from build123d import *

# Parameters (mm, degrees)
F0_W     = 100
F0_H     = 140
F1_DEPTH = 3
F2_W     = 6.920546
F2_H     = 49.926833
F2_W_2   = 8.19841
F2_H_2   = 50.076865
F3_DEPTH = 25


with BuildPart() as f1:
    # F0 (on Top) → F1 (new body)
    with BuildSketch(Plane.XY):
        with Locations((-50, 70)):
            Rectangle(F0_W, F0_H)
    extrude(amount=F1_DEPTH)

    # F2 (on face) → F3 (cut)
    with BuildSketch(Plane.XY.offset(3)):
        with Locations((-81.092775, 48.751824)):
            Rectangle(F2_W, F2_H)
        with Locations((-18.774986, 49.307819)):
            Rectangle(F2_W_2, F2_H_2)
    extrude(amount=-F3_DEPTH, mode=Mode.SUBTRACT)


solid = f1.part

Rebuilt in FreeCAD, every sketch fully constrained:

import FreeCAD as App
import Part
import Sketcher
from FreeCAD import Vector

doc = App.newDocument("Part")
params = doc.addObject("Spreadsheet::Sheet", "Params")
for row, (alias, value) in enumerate([
    ("sketch1_width", "100 mm"),
    ("sketch1_height", "140 mm"),
    ("pad1_length", "3 mm"),
    ("pocket1_length", "25 mm"),
], start=1):
    params.set(f"A{row}", alias)
    params.set(f"B{row}", "=" + value)
    params.setAlias(f"B{row}", alias)

body = doc.addObject("PartDesign::Body", "Body")

# Sketch on XY plane
sketch1 = body.newObject("Sketcher::SketchObject", "Sketch")
sketch1.AttachmentSupport = (doc.getObject("XY_Plane"), [""])
sketch1.MapMode = "FlatFace"
sketch1.addGeometry([
    Part.LineSegment(Vector(-100, 140, 0), Vector(-100, 0, 0)),
    Part.LineSegment(Vector(-100, 0, 0), Vector(0, 0, 0)),
    Part.LineSegment(Vector(0, 0, 0), Vector(0, 140, 0)),
    Part.LineSegment(Vector(0, 140, 0), Vector(-100, 140, 0)),
], False)
sketch1.addConstraint([
    Sketcher.Constraint("Coincident", 0, 2, 1, 1),
    Sketcher.Constraint("Coincident", 1, 2, 2, 1),
    Sketcher.Constraint("Coincident", 2, 2, 3, 1),
    Sketcher.Constraint("Coincident", 3, 2, 0, 1),
    Sketcher.Constraint("Vertical", 0),
    Sketcher.Constraint("Horizontal", 1),
    Sketcher.Constraint("Vertical", 2),
    Sketcher.Constraint("Horizontal", 3),
    Sketcher.Constraint("Coincident", 1, 2, -1, 1),
    Sketcher.Constraint("DistanceX", 1, 1, 1, 2, 100.0),
    Sketcher.Constraint("DistanceY", 0, 2, 0, 1, 140.0),
])
sketch1.setExpression("Constraints[9]", "Params.sketch1_width")
sketch1.setExpression("Constraints[10]", "Params.sketch1_height")
pad1 = body.newObject("PartDesign::Pad", "Pad")
pad1.Profile = sketch1
pad1.setExpression("Length", "Params.pad1_length")

# Sketch on XY plane
sketch2 = body.newObject("Sketcher::SketchObject", "Sketch001")
sketch2.AttachmentSupport = (doc.getObject("XY_Plane"), [""])
sketch2.MapMode = "FlatFace"
sketch2.AttachmentOffset = App.Placement(Vector(0, 0, 3), App.Rotation())
sketch2.addGeometry([
    Part.LineSegment(Vector(-85, 74, 0), Vector(-85, 24, 0)),  # 0
    Part.LineSegment(Vector(-85, 24, 0), Vector(-78, 24, 0)),  # 1
    Part.LineSegment(Vector(-78, 24, 0), Vector(-78, 74, 0)),  # 2
    Part.LineSegment(Vector(-78, 74, 0), Vector(-85, 74, 0)),  # 3
    Part.LineSegment(Vector(-23, 74, 0), Vector(-23, 24, 0)),  # 4
    Part.LineSegment(Vector(-23, 24, 0), Vector(-15, 24, 0)),  # 5
    Part.LineSegment(Vector(-15, 24, 0), Vector(-15, 74, 0)),  # 6
    Part.LineSegment(Vector(-15, 74, 0), Vector(-23, 74, 0)),  # 7
], False)
sketch2.addConstraint([
    Sketcher.Constraint("Coincident", 0, 2, 1, 1),
    Sketcher.Constraint("Coincident", 1, 2, 2, 1),
    Sketcher.Constraint("Coincident", 2, 2, 3, 1),
    Sketcher.Constraint("Coincident", 3, 2, 0, 1),
    Sketcher.Constraint("Coincident", 4, 2, 5, 1),
    Sketcher.Constraint("Coincident", 5, 2, 6, 1),
    Sketcher.Constraint("Coincident", 6, 2, 7, 1),
    Sketcher.Constraint("Coincident", 7, 2, 4, 1),
    Sketcher.Constraint("Vertical", 0),
    Sketcher.Constraint("Horizontal", 1),
    Sketcher.Constraint("Vertical", 2),
    Sketcher.Constraint("Horizontal", 3),
    Sketcher.Constraint("Vertical", 4),
    Sketcher.Constraint("Horizontal", 5),
    Sketcher.Constraint("Vertical", 6),
    Sketcher.Constraint("Horizontal", 7),
    Sketcher.Constraint("DistanceX", 5, 1, 5, 2, 8.19841),
    Sketcher.Constraint("DistanceX", 1, 1, 1, 2, 6.920546),
    Sketcher.Constraint("DistanceY", 0, 2, 0, 1, 49.926833),
    Sketcher.Constraint("DistanceY", 4, 2, 4, 1, 50.076865),
    Sketcher.Constraint("DistanceX", 0, 2, -1, 1, 84.553048),
    Sketcher.Constraint("DistanceY", -1, 1, 2, 2, 73.71524),
    Sketcher.Constraint("DistanceX", 4, 2, -1, 1, 22.874191),
    Sketcher.Constraint("DistanceY", -1, 1, 6, 2, 74.346251),
])
pocket1 = body.newObject("PartDesign::Pocket", "Pocket")
pocket1.Profile = sketch2
pocket1.setExpression("Length", "Params.pocket1_length")

doc.recompute()
